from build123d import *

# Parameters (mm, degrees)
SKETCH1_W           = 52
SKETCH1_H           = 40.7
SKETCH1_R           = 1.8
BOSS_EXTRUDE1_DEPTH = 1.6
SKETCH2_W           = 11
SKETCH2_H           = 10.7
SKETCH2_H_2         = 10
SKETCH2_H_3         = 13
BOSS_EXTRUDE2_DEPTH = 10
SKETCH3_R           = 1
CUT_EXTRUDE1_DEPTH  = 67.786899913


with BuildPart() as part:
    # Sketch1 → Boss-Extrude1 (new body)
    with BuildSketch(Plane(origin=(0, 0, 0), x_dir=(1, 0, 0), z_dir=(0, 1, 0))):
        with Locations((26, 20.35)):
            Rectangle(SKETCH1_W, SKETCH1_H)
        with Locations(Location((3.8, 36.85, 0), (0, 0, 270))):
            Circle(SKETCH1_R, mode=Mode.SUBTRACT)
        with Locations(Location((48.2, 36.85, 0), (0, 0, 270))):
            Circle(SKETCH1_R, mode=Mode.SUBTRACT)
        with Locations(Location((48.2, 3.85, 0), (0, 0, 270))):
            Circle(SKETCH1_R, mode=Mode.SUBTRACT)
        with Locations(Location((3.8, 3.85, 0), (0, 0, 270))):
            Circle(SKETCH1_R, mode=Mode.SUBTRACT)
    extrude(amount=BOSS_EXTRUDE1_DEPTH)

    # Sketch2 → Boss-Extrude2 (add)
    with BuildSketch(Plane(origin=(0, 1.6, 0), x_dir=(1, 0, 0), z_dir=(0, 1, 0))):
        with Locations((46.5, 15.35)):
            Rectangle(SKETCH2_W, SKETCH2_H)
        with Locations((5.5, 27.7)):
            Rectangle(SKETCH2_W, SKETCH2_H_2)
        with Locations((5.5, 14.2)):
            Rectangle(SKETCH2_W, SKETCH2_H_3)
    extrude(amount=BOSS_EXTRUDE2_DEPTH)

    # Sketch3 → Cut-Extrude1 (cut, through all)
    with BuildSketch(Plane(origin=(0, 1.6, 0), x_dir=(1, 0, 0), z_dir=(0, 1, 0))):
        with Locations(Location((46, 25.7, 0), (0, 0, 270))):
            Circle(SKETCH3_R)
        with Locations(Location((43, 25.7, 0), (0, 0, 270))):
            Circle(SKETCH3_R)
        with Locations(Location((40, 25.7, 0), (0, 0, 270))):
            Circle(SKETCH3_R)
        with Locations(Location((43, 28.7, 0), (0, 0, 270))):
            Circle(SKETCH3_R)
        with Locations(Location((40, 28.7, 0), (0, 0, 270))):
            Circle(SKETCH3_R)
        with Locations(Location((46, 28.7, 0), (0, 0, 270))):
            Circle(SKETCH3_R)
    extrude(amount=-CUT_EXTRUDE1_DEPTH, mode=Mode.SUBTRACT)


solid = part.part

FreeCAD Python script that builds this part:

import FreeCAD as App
import Part
import Sketcher

V = App.Vector

doc = App.newDocument("Part")
body = doc.addObject("PartDesign::Body", "Body")

sketch1 = body.newObject("Sketcher::SketchObject", "Sketch")
sketch1.AttachmentSupport = (doc.getObject("XZ_Plane"), [""])
sketch1.MapMode = "FlatFace"
sketch1.addGeometry([
    Part.LineSegment(V(0, -40.7, 0), V(0, 0, 0)),
    Part.LineSegment(V(0, 0, 0), V(52, 0, 0)),
    Part.LineSegment(V(52, 0, 0), V(52, -40.7, 0)),
    Part.LineSegment(V(52, -40.7, 0), V(0, -40.7, 0)),
    Part.Circle(V(3.8, -3.9, 0), V(0, 0, 1), 1.8),
    Part.Circle(V(48.2, -3.9, 0), V(0, 0, 1), 1.8),
    Part.Circle(V(3.8, -36.9, 0), V(0, 0, 1), 1.8),
    Part.Circle(V(48.2, -36.9, 0), V(0, 0, 1), 1.8),
], False)
sketch1.addConstraint([
    Sketcher.Constraint("Coincident", 0, 2, 1, 1),
    Sketcher.Constraint("Coincident", 1, 2, 2, 1),
    Sketcher.Constraint("Coincident", 2, 2, 3, 1),
    Sketcher.Constraint("Coincident", 3, 2, 0, 1),
    Sketcher.Constraint("Vertical", 0),
    Sketcher.Constraint("Horizontal", 1),
    Sketcher.Constraint("Vertical", 2),
    Sketcher.Constraint("Horizontal", 3),
    Sketcher.Constraint("Coincident", 0, 2, -1, 1),
    Sketcher.Constraint("Equal", 4, 5),
    Sketcher.Constraint("Equal", 5, 6),
    Sketcher.Constraint("Equal", 6, 7),
    Sketcher.Constraint("Horizontal", 4, 3, 5, 3),
    Sketcher.Constraint("Horizontal", 6, 3, 7, 3),
    Sketcher.Constraint("Vertical", 4, 3, 6, 3),
    Sketcher.Constraint("Vertical", 5, 3, 7, 3),
    Sketcher.Constraint("Diameter", 4, 3.6),
    Sketcher.Constraint("DistanceX", 1, 1, 1, 2, 52.0),
    Sketcher.Constraint("DistanceY", 0, 1, 0, 2, 40.7),
    Sketcher.Constraint("DistanceY", 6, 3, 4, 3, 33.0),
    Sketcher.Constraint("DistanceX", -1, 1, 4, 3, 3.8),
    Sketcher.Constraint("DistanceX", -1, 1, 5, 3, 48.2),
    Sketcher.Constraint("DistanceY", 4, 3, -1, 1, 3.85),
])
pad1 = body.newObject("PartDesign::Pad", "Pad")
pad1.Profile = sketch1
pad1.Length = 1.6
pad1.Reversed = True

sketch2 = body.newObject("Sketcher::SketchObject", "Sketch001")
sketch2.AttachmentSupport = (doc.getObject("XZ_Plane"), [""])
sketch2.MapMode = "FlatFace"
sketch2.AttachmentOffset = App.Placement(V(0, 0, -1.6), App.Rotation())
sketch2.addGeometry([
    Part.LineSegment(V(41, -21, 0), V(41, -10, 0)),
    Part.LineSegment(V(41, -10, 0), V(52, -10, 0)),
    Part.LineSegment(V(52, -10, 0), V(52, -21, 0)),
    Part.LineSegment(V(52, -21, 0), V(41, -21, 0)),
    Part.LineSegment(V(0, -33, 0), V(0, -23, 0)),
    Part.LineSegment(V(0, -23, 0), V(11, -23, 0)),
    Part.LineSegment(V(11, -23, 0), V(11, -33, 0)),
    Part.LineSegment(V(11, -33, 0), V(0, -33, 0)),
    Part.LineSegment(V(0, -21, 0), V(0, -8, 0)),
    Part.LineSegment(V(0, -8, 0), V(11, -8, 0)),
    Part.LineSegment(V(11, -8, 0), V(11, -21, 0)),
    Part.LineSegment(V(11, -21, 0), V(0, -21, 0)),
], False)
sketch2.addConstraint([
    Sketcher.Constraint("Coincident", 0, 2, 1, 1),
    Sketcher.Constraint("Coincident", 1, 2, 2, 1),
    Sketcher.Constraint("Coincident", 2, 2, 3, 1),
    Sketcher.Constraint("Coincident", 3, 2, 0, 1),
    Sketcher.Constraint("Coincident", 4, 2, 5, 1),
    Sketcher.Constraint("Coincident", 5, 2, 6, 1),
    Sketcher.Constraint("Coincident", 6, 2, 7, 1),
    Sketcher.Constraint("Coincident", 7, 2, 4, 1),
    Sketcher.Constraint("Coincident", 8, 2, 9, 1),
    Sketcher.Constraint("Coincident", 9, 2, 10, 1),
    Sketcher.Constraint("Coincident", 10, 2, 11, 1),
    Sketcher.Constraint("Coincident", 11, 2, 8, 1),
    Sketcher.Constraint("Vertical", 0),
    Sketcher.Constraint("Horizontal", 1),
    Sketcher.Constraint("Vertical", 2),
    Sketcher.Constraint("Horizontal", 3),
    Sketcher.Constraint("Vertical", 4),
    Sketcher.Constraint("Horizontal", 5),
    Sketcher.Constraint("Vertical", 6),
    Sketcher.Constraint("Horizontal", 7),
    Sketcher.Constraint("Vertical", 8),
    Sketcher.Constraint("Horizontal", 9),
    Sketcher.Constraint("Vertical", 10),
    Sketcher.Constraint("Horizontal", 11),
    Sketcher.Constraint("PointOnObject", 4, 2, -2),
    Sketcher.Constraint("PointOnObject", 8, 2, -2),
    Sketcher.Constraint("Horizontal", 3, 2, 10, 2),
    Sketcher.Constraint("Vertical", 6, 2, 9, 2),
    Sketcher.Constraint("Equal", 3, 5),
    Sketcher.Constraint("DistanceX", 1, 1, 1, 2, 11.0),
    Sketcher.Constraint("DistanceY", 4, 1, 4, 2, 10.0),
    Sketcher.Constraint("DistanceY", 8, 1, 8, 2, 13.0),
    Sketcher.Constraint("DistanceY", 0, 1, 0, 2, 10.7),
    Sketcher.Constraint("DistanceX", -1, 1, 0, 2, 41.0),
    Sketcher.Constraint("DistanceY", 0, 2, -1, 1, 10.0),
    Sketcher.Constraint("DistanceY", 4, 2, 3, 2, 2.0),
])
pad2 = body.newObject("PartDesign::Pad", "Pad001")
pad2.Profile = sketch2
pad2.Length = 10
pad2.Reversed = True

sketch3 = body.newObject("Sketcher::SketchObject", "Sketch002")
sketch3.AttachmentSupport = (doc.getObject("XZ_Plane"), [""])
sketch3.MapMode = "FlatFace"
sketch3.AttachmentOffset = App.Placement(V(0, 0, -1.6), App.Rotation())
sketch3.addGeometry([
    Part.Circle(V(46, -25.7, 0), V(0, 0, 1), 1),
    Part.Circle(V(43, -25.7, 0), V(0, 0, 1), 1),
    Part.Circle(V(40, -25.7, 0), V(0, 0, 1), 1),
    Part.Circle(V(43, -28.7, 0), V(0, 0, 1), 1),
    Part.Circle(V(40, -28.7, 0), V(0, 0, 1), 1),
    Part.Circle(V(46, -28.7, 0), V(0, 0, 1), 1),
], False)
sketch3.addConstraint([
    Sketcher.Constraint("Equal", 0, 1),
    Sketcher.Constraint("Equal", 1, 2),
    Sketcher.Constraint("Equal", 2, 3),
    Sketcher.Constraint("Equal", 3, 4),
    Sketcher.Constraint("Equal", 4, 5),
    Sketcher.Constraint("Horizontal", 0, 3, 1, 3),
    Sketcher.Constraint("Horizontal", 1, 3, 2, 3),
    Sketcher.Constraint("Horizontal", 3, 3, 4, 3),
    Sketcher.Constraint("Horizontal", 4, 3, 5, 3),
    Sketcher.Constraint("Vertical", 1, 3, 3, 3),
    Sketcher.Constraint("Vertical", 2, 3, 4, 3),
    Sketcher.Constraint("Vertical", 0, 3, 5, 3),
    Sketcher.Constraint("Diameter", 0, 2.0),
    Sketcher.Constraint("DistanceX", -1, 1, 0, 3, 46.0),
    Sketcher.Constraint("DistanceX", -1, 1, 1, 3, 43.0),
    Sketcher.Constraint("DistanceX", -1, 1, 2, 3, 40.0),
    Sketcher.Constraint("DistanceY", 3, 3, 1, 3, 3.0),
    Sketcher.Constraint("DistanceY", 0, 3, -1, 1, 25.7),
])
pocket1 = body.newObject("PartDesign::Pocket", "Pocket")
pocket1.Profile = sketch3
pocket1.Type = "ThroughAll"
pocket1.Reversed = True

doc.recompute()
